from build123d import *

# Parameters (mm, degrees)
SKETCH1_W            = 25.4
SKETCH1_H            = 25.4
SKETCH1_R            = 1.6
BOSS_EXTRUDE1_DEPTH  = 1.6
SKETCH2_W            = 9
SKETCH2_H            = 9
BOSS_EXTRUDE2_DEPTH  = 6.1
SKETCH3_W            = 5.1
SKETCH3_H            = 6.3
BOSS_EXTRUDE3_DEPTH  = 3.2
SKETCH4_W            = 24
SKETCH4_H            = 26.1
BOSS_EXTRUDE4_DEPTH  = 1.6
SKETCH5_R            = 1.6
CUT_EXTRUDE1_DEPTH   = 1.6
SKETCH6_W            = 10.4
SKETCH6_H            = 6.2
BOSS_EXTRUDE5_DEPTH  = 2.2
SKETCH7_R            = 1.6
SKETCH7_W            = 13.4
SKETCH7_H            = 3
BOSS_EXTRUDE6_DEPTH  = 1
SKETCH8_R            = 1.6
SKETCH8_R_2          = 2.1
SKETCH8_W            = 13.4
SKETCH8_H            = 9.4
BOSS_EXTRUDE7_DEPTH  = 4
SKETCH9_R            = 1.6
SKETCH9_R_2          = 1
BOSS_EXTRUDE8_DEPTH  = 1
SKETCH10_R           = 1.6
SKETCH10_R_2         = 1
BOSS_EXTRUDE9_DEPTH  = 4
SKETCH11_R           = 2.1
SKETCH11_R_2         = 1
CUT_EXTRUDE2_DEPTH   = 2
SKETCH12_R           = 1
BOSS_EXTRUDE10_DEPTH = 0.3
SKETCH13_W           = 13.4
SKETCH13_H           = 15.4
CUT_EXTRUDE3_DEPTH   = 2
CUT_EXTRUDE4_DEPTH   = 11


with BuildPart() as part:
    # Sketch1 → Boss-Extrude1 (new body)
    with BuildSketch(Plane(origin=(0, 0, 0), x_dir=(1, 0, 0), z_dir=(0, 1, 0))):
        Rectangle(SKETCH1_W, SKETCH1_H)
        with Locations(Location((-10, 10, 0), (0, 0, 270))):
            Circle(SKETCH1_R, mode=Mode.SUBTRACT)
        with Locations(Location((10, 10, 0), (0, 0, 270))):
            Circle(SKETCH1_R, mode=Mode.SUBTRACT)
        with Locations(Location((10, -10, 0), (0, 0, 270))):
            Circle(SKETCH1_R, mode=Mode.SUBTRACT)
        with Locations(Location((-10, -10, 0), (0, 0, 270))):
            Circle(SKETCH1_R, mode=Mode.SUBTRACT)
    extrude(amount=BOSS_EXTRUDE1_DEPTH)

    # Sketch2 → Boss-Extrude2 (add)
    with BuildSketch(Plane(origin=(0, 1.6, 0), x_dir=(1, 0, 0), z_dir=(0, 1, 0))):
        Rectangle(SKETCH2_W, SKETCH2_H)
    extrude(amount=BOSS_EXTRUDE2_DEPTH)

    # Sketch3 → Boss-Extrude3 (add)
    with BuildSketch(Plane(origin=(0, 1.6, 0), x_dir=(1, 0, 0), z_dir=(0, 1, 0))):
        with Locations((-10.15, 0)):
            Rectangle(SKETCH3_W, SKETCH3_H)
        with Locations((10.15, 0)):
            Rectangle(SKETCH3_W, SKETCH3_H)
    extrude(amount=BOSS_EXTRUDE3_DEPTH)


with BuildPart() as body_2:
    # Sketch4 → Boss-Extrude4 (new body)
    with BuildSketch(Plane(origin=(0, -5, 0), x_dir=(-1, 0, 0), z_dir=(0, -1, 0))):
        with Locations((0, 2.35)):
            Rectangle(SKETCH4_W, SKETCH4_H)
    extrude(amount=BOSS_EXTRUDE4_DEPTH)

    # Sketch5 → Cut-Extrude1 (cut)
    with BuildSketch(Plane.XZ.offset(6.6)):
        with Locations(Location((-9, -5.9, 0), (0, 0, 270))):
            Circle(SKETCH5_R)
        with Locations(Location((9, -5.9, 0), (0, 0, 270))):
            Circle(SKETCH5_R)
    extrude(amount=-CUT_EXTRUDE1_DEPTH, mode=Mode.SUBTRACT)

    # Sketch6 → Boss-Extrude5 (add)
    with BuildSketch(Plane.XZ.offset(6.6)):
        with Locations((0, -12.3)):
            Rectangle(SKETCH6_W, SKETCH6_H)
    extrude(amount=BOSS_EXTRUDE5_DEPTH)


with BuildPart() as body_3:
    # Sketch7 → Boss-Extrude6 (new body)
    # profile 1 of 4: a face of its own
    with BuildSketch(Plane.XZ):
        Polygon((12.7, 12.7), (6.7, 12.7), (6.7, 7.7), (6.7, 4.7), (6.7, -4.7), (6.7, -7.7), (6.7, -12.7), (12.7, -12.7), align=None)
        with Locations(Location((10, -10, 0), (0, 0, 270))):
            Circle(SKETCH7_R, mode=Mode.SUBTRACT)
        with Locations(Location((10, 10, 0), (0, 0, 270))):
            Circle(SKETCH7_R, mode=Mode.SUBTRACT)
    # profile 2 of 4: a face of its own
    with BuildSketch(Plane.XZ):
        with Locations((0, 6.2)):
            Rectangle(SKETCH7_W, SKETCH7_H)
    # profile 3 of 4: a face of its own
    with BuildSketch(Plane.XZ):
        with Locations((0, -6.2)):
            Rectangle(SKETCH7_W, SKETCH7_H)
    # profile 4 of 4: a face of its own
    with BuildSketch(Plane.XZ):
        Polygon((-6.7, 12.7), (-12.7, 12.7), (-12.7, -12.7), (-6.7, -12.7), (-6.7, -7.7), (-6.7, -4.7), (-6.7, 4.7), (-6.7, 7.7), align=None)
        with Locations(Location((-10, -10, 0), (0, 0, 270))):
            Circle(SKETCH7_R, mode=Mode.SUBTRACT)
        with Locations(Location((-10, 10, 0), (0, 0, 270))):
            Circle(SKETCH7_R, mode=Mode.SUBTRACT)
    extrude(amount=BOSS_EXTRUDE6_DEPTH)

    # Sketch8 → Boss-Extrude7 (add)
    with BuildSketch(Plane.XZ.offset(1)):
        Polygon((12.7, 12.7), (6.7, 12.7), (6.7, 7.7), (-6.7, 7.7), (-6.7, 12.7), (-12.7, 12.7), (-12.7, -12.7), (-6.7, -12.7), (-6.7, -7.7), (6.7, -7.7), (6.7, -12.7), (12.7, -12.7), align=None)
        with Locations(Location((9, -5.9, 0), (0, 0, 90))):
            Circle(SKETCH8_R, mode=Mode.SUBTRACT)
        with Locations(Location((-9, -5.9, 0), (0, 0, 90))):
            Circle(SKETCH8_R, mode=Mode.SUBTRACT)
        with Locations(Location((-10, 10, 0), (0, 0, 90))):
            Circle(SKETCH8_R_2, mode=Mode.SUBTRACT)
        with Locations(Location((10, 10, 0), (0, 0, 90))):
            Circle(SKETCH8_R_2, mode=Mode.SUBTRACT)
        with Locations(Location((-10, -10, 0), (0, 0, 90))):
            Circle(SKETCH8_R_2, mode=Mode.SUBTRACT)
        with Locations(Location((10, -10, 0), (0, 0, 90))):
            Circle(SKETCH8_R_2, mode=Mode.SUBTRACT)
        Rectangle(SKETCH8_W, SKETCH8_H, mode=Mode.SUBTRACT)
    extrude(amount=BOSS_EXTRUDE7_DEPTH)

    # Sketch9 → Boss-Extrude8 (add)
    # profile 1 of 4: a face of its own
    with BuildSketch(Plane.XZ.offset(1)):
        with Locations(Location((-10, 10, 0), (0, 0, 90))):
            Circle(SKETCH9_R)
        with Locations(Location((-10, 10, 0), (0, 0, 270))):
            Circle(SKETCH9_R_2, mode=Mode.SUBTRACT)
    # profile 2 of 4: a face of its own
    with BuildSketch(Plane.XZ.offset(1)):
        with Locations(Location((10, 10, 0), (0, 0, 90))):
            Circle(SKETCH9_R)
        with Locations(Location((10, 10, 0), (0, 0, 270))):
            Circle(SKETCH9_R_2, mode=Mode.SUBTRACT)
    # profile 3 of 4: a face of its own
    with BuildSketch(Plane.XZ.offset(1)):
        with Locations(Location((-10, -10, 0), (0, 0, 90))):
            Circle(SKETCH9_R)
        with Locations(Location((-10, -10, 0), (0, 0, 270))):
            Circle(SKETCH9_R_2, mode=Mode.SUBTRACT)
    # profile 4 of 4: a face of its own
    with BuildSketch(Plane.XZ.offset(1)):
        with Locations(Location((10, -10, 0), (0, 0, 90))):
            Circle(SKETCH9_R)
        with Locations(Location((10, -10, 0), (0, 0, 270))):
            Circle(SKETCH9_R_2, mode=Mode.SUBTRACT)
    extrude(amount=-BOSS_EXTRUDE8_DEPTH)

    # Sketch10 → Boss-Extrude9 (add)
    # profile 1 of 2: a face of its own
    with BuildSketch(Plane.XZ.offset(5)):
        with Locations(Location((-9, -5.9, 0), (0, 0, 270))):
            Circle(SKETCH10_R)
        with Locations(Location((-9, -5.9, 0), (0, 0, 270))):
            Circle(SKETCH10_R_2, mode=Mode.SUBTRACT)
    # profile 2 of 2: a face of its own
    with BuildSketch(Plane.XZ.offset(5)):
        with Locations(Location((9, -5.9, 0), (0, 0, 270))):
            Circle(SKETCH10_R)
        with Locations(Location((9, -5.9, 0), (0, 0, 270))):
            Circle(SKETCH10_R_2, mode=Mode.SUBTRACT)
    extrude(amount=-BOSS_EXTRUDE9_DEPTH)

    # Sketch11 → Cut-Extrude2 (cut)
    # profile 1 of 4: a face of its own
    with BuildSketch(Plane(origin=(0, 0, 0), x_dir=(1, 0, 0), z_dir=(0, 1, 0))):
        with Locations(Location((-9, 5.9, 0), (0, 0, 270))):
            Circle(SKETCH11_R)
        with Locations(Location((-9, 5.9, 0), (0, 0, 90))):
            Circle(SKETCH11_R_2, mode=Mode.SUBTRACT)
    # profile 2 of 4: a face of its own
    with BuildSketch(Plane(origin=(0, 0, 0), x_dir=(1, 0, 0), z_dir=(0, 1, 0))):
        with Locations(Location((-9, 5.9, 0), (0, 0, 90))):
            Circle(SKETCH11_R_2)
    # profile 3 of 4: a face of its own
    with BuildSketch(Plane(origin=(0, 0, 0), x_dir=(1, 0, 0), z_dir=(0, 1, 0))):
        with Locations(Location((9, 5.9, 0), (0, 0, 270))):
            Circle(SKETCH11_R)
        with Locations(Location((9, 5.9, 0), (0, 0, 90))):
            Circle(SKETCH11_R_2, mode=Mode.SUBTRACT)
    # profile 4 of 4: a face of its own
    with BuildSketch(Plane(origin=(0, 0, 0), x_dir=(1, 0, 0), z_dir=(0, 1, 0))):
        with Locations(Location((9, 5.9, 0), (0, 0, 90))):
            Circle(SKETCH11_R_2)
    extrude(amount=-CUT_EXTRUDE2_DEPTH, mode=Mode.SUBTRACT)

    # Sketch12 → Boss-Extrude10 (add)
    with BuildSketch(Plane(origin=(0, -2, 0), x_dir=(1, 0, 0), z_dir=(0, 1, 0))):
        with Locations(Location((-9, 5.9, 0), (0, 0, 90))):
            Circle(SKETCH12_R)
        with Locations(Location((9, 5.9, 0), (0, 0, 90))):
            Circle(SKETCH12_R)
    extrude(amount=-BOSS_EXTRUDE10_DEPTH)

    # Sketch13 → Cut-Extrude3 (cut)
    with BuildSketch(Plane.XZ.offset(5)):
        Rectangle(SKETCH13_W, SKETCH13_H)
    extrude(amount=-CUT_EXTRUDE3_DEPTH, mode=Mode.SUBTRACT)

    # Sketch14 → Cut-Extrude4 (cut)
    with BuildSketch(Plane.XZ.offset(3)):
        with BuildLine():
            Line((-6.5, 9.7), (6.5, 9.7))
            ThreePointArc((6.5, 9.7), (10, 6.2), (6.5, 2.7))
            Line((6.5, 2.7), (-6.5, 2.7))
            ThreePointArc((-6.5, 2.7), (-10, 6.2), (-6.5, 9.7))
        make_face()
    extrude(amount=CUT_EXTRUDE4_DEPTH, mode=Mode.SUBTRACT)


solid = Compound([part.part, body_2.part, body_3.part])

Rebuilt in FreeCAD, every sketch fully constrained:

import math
import FreeCAD as App
import Part
import Sketcher

V = App.Vector
Q = App.Units.Quantity

doc = App.newDocument("Part")
body = doc.addObject("PartDesign::Body", "Body")

# Sketch on XZ plane
sketch1 = body.newObject("Sketcher::SketchObject", "Sketch")
sketch1.AttachmentSupport = (doc.getObject("XZ_Plane"), [""])
sketch1.MapMode = "FlatFace"
sketch1.addGeometry([
    Part.LineSegment(V(-12.7, -12.7, 0), V(-12.7, 12.7, 0)),  # 0
    Part.LineSegment(V(-12.7, 12.7, 0), V(12.7, 12.7, 0)),  # 1
    Part.LineSegment(V(12.7, 12.7, 0), V(12.7, -12.7, 0)),  # 2
    Part.LineSegment(V(12.7, -12.7, 0), V(-12.7, -12.7, 0)),  # 3
    Part.Circle(V(-10, 10, 0), V(0, 0, 1), 1.6),  # 4
    Part.Circle(V(10, 10, 0), V(0, 0, 1), 1.6),  # 5
    Part.Circle(V(-10, -10, 0), V(0, 0, 1), 1.6),  # 6
    Part.Circle(V(10, -10, 0), V(0, 0, 1), 1.6),  # 7
], False)
sketch1.addConstraint([
    Sketcher.Constraint("Coincident", 0, 2, 1, 1),
    Sketcher.Constraint("Coincident", 1, 2, 2, 1),
    Sketcher.Constraint("Coincident", 2, 2, 3, 1),
    Sketcher.Constraint("Coincident", 3, 2, 0, 1),
    Sketcher.Constraint("Vertical", 0),
    Sketcher.Constraint("Horizontal", 1),
    Sketcher.Constraint("Vertical", 2),
    Sketcher.Constraint("Horizontal", 3),
    Sketcher.Constraint("Equal", 4, 5),
    Sketcher.Constraint("Equal", 5, 6),
    Sketcher.Constraint("Equal", 6, 7),
    Sketcher.Constraint("Symmetric", 5, 3, 6, 3, -1, 1),
    Sketcher.Constraint("Symmetric", 4, 3, 7, 3, -1, 1),
    Sketcher.Constraint("Symmetric", 0, 2, 2, 2, -1, 1),
    Sketcher.Constraint("Symmetric", 4, 3, 5, 3, -2),
    Sketcher.Constraint("Equal", 3, 0),
    Sketcher.Constraint("Diameter", 4, Q("3.2 mm")),
    Sketcher.Constraint("DistanceX", 1, 1, 1, 2, Q("25.4 mm")),
    Sketcher.Constraint("DistanceX", 4, 3, -1, 1, Q("10 mm")),
    Sketcher.Constraint("DistanceY", -1, 1, 4, 3, Q("10 mm")),
])
pad1 = body.newObject("PartDesign::Pad", "Pad")
pad1.Profile = sketch1
pad1.Length = 1.6
pad1.Reversed = True

# Sketch on XZ plane
sketch2 = body.newObject("Sketcher::SketchObject", "Sketch001")
sketch2.AttachmentSupport = (doc.getObject("XZ_Plane"), [""])
sketch2.MapMode = "FlatFace"
sketch2.AttachmentOffset = App.Placement(V(0, 0, -1.6), App.Rotation())
sketch2.addGeometry([
    Part.LineSegment(V(-4, -4, 0), V(-4, 4, 0)),
    Part.LineSegment(V(-4, 4, 0), V(4, 4, 0)),
    Part.LineSegment(V(4, 4, 0), V(4, -4, 0)),
    Part.LineSegment(V(4, -4, 0), V(-4, -4, 0)),
], False)
sketch2.addConstraint([
    Sketcher.Constraint("Coincident", 0, 2, 1, 1),
    Sketcher.Constraint("Coincident", 1, 2, 2, 1),
    Sketcher.Constraint("Coincident", 2, 2, 3, 1),
    Sketcher.Constraint("Coincident", 3, 2, 0, 1),
    Sketcher.Constraint("Vertical", 0),
    Sketcher.Constraint("Horizontal", 1),
    Sketcher.Constraint("Vertical", 2),
    Sketcher.Constraint("Horizontal", 3),
    Sketcher.Constraint("Symmetric", 0, 2, 2, 2, -1, 1),
    Sketcher.Constraint("Equal", 3, 0),
    Sketcher.Constraint("DistanceX", 1, 1, 1, 2, Q("9 mm")),
])
pad2 = body.newObject("PartDesign::Pad", "Pad001")
pad2.Profile = sketch2
pad2.Length = 6.1
pad2.Reversed = True

# Sketch on XZ plane
sketch3 = body.newObject("Sketcher::SketchObject", "Sketch002")
sketch3.AttachmentSupport = (doc.getObject("XZ_Plane"), [""])
sketch3.MapMode = "FlatFace"
sketch3.AttachmentOffset = App.Placement(V(0, 0, -1.6), App.Rotation())
sketch3.addGeometry([
    Part.LineSegment(V(-13, -3, 0), V(-13, 3, 0)),  # 0
    Part.LineSegment(V(-13, 3, 0), V(-8, 3, 0)),  # 1
    Part.LineSegment(V(-8, 3, 0), V(-8, -3, 0)),  # 2
    Part.LineSegment(V(-8, -3, 0), V(-13, -3, 0)),  # 3
    Part.LineSegment(V(8, -3, 0), V(8, 3, 0)),  # 4
    Part.LineSegment(V(8, 3, 0), V(13, 3, 0)),  # 5
    Part.LineSegment(V(13, 3, 0), V(13, -3, 0)),  # 6
    Part.LineSegment(V(13, -3, 0), V(8, -3, 0)),  # 7
], False)
sketch3.addConstraint([
    Sketcher.Constraint("Coincident", 0, 2, 1, 1),
    Sketcher.Constraint("Coincident", 1, 2, 2, 1),
    Sketcher.Constraint("Coincident", 2, 2, 3, 1),
    Sketcher.Constraint("Coincident", 3, 2, 0, 1),
    Sketcher.Constraint("Coincident", 4, 2, 5, 1),
    Sketcher.Constraint("Coincident", 5, 2, 6, 1),
    Sketcher.Constraint("Coincident", 6, 2, 7, 1),
    Sketcher.Constraint("Coincident", 7, 2, 4, 1),
    Sketcher.Constraint("Vertical", 0),
    Sketcher.Constraint("Horizontal", 1),
    Sketcher.Constraint("Vertical", 2),
    Sketcher.Constraint("Horizontal", 3),
    Sketcher.Constraint("Vertical", 4),
    Sketcher.Constraint("Horizontal", 5),
    Sketcher.Constraint("Vertical", 6),
    Sketcher.Constraint("Horizontal", 7),
    Sketcher.Constraint("Symmetric", 2, 2, 4, 2, -1, 1),
    Sketcher.Constraint("Symmetric", 0, 2, 6, 2, -1, 1),
    Sketcher.Constraint("Horizontal", 1, 2, 4, 2),
    Sketcher.Constraint("DistanceX", 1, 1, 1, 2, Q("5.1 mm")),
    Sketcher.Constraint("DistanceY", 0, 1, 0, 2, Q("6.3 mm")),
    Sketcher.Constraint("DistanceX", 0, 2, -1, 1, Q("12.7 mm")),
])
pad3 = body.newObject("PartDesign::Pad", "Pad002")
pad3.Profile = sketch3
pad3.Length = 3.2
pad3.Reversed = True
body2 = doc.addObject("PartDesign::Body", "Body001")

# Sketch on XZ plane
sketch4 = body2.newObject("Sketcher::SketchObject", "Sketch003")
sketch4.AttachmentSupport = (doc.getObject("XZ_Plane001"), [""])
sketch4.MapMode = "FlatFace"
sketch4.AttachmentOffset = App.Placement(V(0, 0, 5), App.Rotation())
sketch4.addGeometry([
    Part.LineSegment(V(12, -15, 0), V(12, 11, 0)),
    Part.LineSegment(V(12, 11, 0), V(-12, 11, 0)),
    Part.LineSegment(V(-12, 11, 0), V(-12, -15, 0)),
    Part.LineSegment(V(-12, -15, 0), V(12, -15, 0)),
], False)
sketch4.addConstraint([
    Sketcher.Constraint("Coincident", 0, 2, 1, 1),
    Sketcher.Constraint("Coincident", 1, 2, 2, 1),
    Sketcher.Constraint("Coincident", 2, 2, 3, 1),
    Sketcher.Constraint("Coincident", 3, 2, 0, 1),
    Sketcher.Constraint("Vertical", 0),
    Sketcher.Constraint("Horizontal", 1),
    Sketcher.Constraint("Vertical", 2),
    Sketcher.Constraint("Horizontal", 3),
    Sketcher.Constraint("DistanceX", 1, 2, 1, 1, Q("24 mm")),
    Sketcher.Constraint("DistanceY", 0, 1, 0, 2, Q("26.1 mm")),
    Sketcher.Constraint("DistanceX", -1, 1, 0, 2, Q("12 mm")),
    Sketcher.Constraint("DistanceY", -1, 1, 0, 2, Q("10.7 mm")),
])
pad4 = body2.newObject("PartDesign::Pad", "Pad003")
pad4.Profile = sketch4
pad4.Length = 1.6

# Sketch on XZ plane
sketch5 = body2.newObject("Sketcher::SketchObject", "Sketch004")
sketch5.AttachmentSupport = (doc.getObject("XZ_Plane001"), [""])
sketch5.MapMode = "FlatFace"
sketch5.AttachmentOffset = App.Placement(V(0, 0, 6.6), App.Rotation())
sketch5.addGeometry([
    Part.Circle(V(-9, -5.9, 0), V(0, 0, 1), 1.6),
    Part.Circle(V(9, -5.9, 0), V(0, 0, 1), 1.6),
], False)
sketch5.addConstraint([
    Sketcher.Constraint("Equal", 0, 1),
    Sketcher.Constraint("Symmetric", 0, 3, 1, 3, -2),
    Sketcher.Constraint("Diameter", 0, Q("3.2 mm")),
    Sketcher.Constraint("DistanceX", 0, 3, -1, 1, Q("9 mm")),
    Sketcher.Constraint("DistanceY", 0, 3, -1, 1, Q("5.9 mm")),
])
pocket1 = body2.newObject("PartDesign::Pocket", "Pocket")
pocket1.Profile = sketch5
pocket1.Length = 1.6

# Sketch on XZ plane
sketch6 = body2.newObject("Sketcher::SketchObject", "Sketch005")
sketch6.AttachmentSupport = (doc.getObject("XZ_Plane001"), [""])
sketch6.MapMode = "FlatFace"
sketch6.AttachmentOffset = App.Placement(V(0, 0, 6.6), App.Rotation())
sketch6.addGeometry([
    Part.LineSegment(V(-5, -9, 0), V(-5, -15, 0)),
    Part.LineSegment(V(-5, -15, 0), V(5, -15, 0)),
    Part.LineSegment(V(5, -15, 0), V(5, -9, 0)),
    Part.LineSegment(V(5, -9, 0), V(-5, -9, 0)),
], False)
sketch6.addConstraint([
    Sketcher.Constraint("Coincident", 0, 2, 1, 1),
    Sketcher.Constraint("Coincident", 1, 2, 2, 1),
    Sketcher.Constraint("Coincident", 2, 2, 3, 1),
    Sketcher.Constraint("Coincident", 3, 2, 0, 1),
    Sketcher.Constraint("Vertical", 0),
    Sketcher.Constraint("Horizontal", 1),
    Sketcher.Constraint("Vertical", 2),
    Sketcher.Constraint("Horizontal", 3),
    Sketcher.Constraint("DistanceX", 1, 1, 1, 2, Q("10.4 mm")),
    Sketcher.Constraint("DistanceY", 0, 2, 0, 1, Q("6.2 mm")),
    Sketcher.Constraint("DistanceX", 0, 2, -1, 1, Q("5.2 mm")),
    Sketcher.Constraint("DistanceY", 0, 2, -1, 1, Q("15.4 mm")),
])
pad5 = body2.newObject("PartDesign::Pad", "Pad004")
pad5.Profile = sketch6
pad5.Length = 2.2
body3 = doc.addObject("PartDesign::Body", "Body002")

# Sketch on XZ plane
sketch7 = body3.newObject("Sketcher::SketchObject", "Sketch006")
sketch7.AttachmentSupport = (doc.getObject("XZ_Plane002"), [""])
sketch7.MapMode = "FlatFace"
sketch7.addGeometry([
    Part.LineSegment(V(12.7, 12.7, 0), V(6.7, 12.7, 0)),  # 0
    Part.LineSegment(V(6.7, 12.7, 0), V(6.7, 7.7, 0)),  # 1
    Part.LineSegment(V(6.7, 7.7, 0), V(-6.7, 7.7, 0)),  # 2
    Part.LineSegment(V(-6.7, 7.7, 0), V(-6.7, 12.7, 0)),  # 3
    Part.LineSegment(V(-6.7, 12.7, 0), V(-12.7, 12.7, 0)),  # 4
    Part.LineSegment(V(-12.7, 12.7, 0), V(-12.7, -12.7, 0)),  # 5
    Part.LineSegment(V(-12.7, -12.7, 0), V(-6.7, -12.7, 0)),  # 6
    Part.LineSegment(V(-6.7, -12.7, 0), V(-6.7, -7.7, 0)),  # 7
    Part.LineSegment(V(-6.7, -7.7, 0), V(6.7, -7.7, 0)),  # 8
    Part.LineSegment(V(6.7, -7.7, 0), V(6.7, -12.7, 0)),  # 9
    Part.LineSegment(V(6.7, -12.7, 0), V(12.7, -12.7, 0)),  # 10
    Part.LineSegment(V(12.7, -12.7, 0), V(12.7, 12.7, 0)),  # 11
    Part.LineSegment(V(6.7, 4.7, 0), V(6.7, -4.7, 0)),  # 12
    Part.LineSegment(V(6.7, -4.7, 0), V(-6.7, -4.7, 0)),  # 13
    Part.LineSegment(V(-6.7, -4.7, 0), V(-6.7, 4.7, 0)),  # 14
    Part.LineSegment(V(-6.7, 4.7, 0), V(6.7, 4.7, 0)),  # 15
    Part.Circle(V(10, -10, 0), V(0, 0, 1), 1.6),  # 16
    Part.Circle(V(10, 10, 0), V(0, 0, 1), 1.6),  # 17
    Part.Circle(V(-10, -10, 0), V(0, 0, 1), 1.6),  # 18
    Part.Circle(V(-10, 10, 0), V(0, 0, 1), 1.6),  # 19
], False)
sketch7.addConstraint([
    Sketcher.Constraint("Coincident", 0, 2, 1, 1),
    Sketcher.Constraint("Coincident", 1, 2, 2, 1),
    Sketcher.Constraint("Coincident", 2, 2, 3, 1),
    Sketcher.Constraint("Coincident", 3, 2, 4, 1),
    Sketcher.Constraint("Coincident", 4, 2, 5, 1),
    Sketcher.Constraint("Coincident", 5, 2, 6, 1),
    Sketcher.Constraint("Coincident", 6, 2, 7, 1),
    Sketcher.Constraint("Coincident", 7, 2, 8, 1),
    Sketcher.Constraint("Coincident", 8, 2, 9, 1),
    Sketcher.Constraint("Coincident", 9, 2, 10, 1),
    Sketcher.Constraint("Coincident", 10, 2, 11, 1),
    Sketcher.Constraint("Coincident", 11, 2, 0, 1),
    Sketcher.Constraint("Coincident", 12, 2, 13, 1),
    Sketcher.Constraint("Coincident", 13, 2, 14, 1),
    Sketcher.Constraint("Coincident", 14, 2, 15, 1),
    Sketcher.Constraint("Coincident", 15, 2, 12, 1),
    Sketcher.Constraint("Horizontal", 0),
    Sketcher.Constraint("Vertical", 1),
    Sketcher.Constraint("Horizontal", 2),
    Sketcher.Constraint("Vertical", 3),
    Sketcher.Constraint("Horizontal", 4),
    Sketcher.Constraint("Vertical", 5),
    Sketcher.Constraint("Horizontal", 6),
    Sketcher.Constraint("Vertical", 7),
    Sketcher.Constraint("Horizontal", 8),
    Sketcher.Constraint("Vertical", 9),
    Sketcher.Constraint("Horizontal", 10),
    Sketcher.Constraint("Vertical", 11),
    Sketcher.Constraint("Vertical", 12),
    Sketcher.Constraint("Horizontal", 13),
    Sketcher.Constraint("Vertical", 14),
    Sketcher.Constraint("Horizontal", 15),
    Sketcher.Constraint("Equal", 16, 17),
    Sketcher.Constraint("Equal", 17, 18),
    Sketcher.Constraint("Equal", 18, 19),
    Sketcher.Constraint("Symmetric", 17, 3, 18, 3, -1, 1),
    Sketcher.Constraint("Symmetric", 16, 3, 19, 3, -1, 1),
    Sketcher.Constraint("Symmetric", 0, 2, 6, 2, -1, 1),
    Sketcher.Constraint("Symmetric", 2, 2, 8, 2, -1, 1),
    Sketcher.Constraint("Symmetric", 4, 2, 10, 2, -1, 1),
    Sketcher.Constraint("Symmetric", 12, 2, 14, 2, -1, 1),
    Sketcher.Constraint("Symmetric", 16, 3, 18, 3, -2),
    Sketcher.Constraint("Symmetric", 0, 2, 3, 2, -2),
    Sketcher.Constraint("Vertical", 9, 2, 12, 2),
    Sketcher.Constraint("Diameter", 16, Q("3.2 mm")),
    Sketcher.Constraint("DistanceX", 0, 2, 0, 1, Q("6 mm")),
    Sketcher.Constraint("DistanceY", 1, 2, 1, 1, Q("5 mm")),
    Sketcher.Constraint("DistanceX", 2, 2, 2, 1, Q("13.4 mm")),
    Sketcher.Constraint("DistanceY", 5, 2, 5, 1, Q("25.4 mm")),
    Sketcher.Constraint("DistanceY", 12, 2, 12, 1, Q("9.4 mm")),
    Sketcher.Constraint("DistanceX", -1, 1, 16, 3, Q("10 mm")),
    Sketcher.Constraint("DistanceY", 16, 3, -1, 1, Q("10 mm")),
])
pad6 = body3.newObject("PartDesign::Pad", "Pad005")
pad6.Profile = sketch7
pad6.Length = 1

# Sketch on XZ plane
sketch8 = body3.newObject("Sketcher::SketchObject", "Sketch007")
sketch8.AttachmentSupport = (doc.getObject("XZ_Plane002"), [""])
sketch8.MapMode = "FlatFace"
sketch8.AttachmentOffset = App.Placement(V(0, 0, 1), App.Rotation())
sketch8.addGeometry([
    Part.LineSegment(V(12.7, 12.7, 0), V(6.7, 12.7, 0)),  # 0
    Part.LineSegment(V(6.7, 12.7, 0), V(6.7, 7.7, 0)),  # 1
    Part.LineSegment(V(6.7, 7.7, 0), V(-6.7, 7.7, 0)),  # 2
    Part.LineSegment(V(-6.7, 7.7, 0), V(-6.7, 12.7, 0)),  # 3
    Part.LineSegment(V(-6.7, 12.7, 0), V(-12.7, 12.7, 0)),  # 4
    Part.LineSegment(V(-12.7, 12.7, 0), V(-12.7, -12.7, 0)),  # 5
    Part.LineSegment(V(-12.7, -12.7, 0), V(-6.7, -12.7, 0)),  # 6
    Part.LineSegment(V(-6.7, -12.7, 0), V(-6.7, -7.7, 0)),  # 7
    Part.LineSegment(V(-6.7, -7.7, 0), V(6.7, -7.7, 0)),  # 8
    Part.LineSegment(V(6.7, -7.7, 0), V(6.7, -12.7, 0)),  # 9
    Part.LineSegment(V(6.7, -12.7, 0), V(12.7, -12.7, 0)),  # 10
    Part.LineSegment(V(12.7, -12.7, 0), V(12.7, 12.7, 0)),  # 11
    Part.Circle(V(-10, -10, 0), V(0, 0, 1), 2.1),  # 12
    Part.Circle(V(-9, -5.9, 0), V(0, 0, 1), 1.6),  # 13
    Part.Circle(V(10, -10, 0), V(0, 0, 1), 2.1),  # 14
    Part.Circle(V(9, -5.9, 0), V(0, 0, 1), 1.6),  # 15
    Part.Circle(V(-10, 10, 0), V(0, 0, 1), 2.1),  # 16
    Part.LineSegment(V(6.7, -4.7, 0), V(-6.7, -4.7, 0)),  # 17
    Part.LineSegment(V(-6.7, -4.7, 0), V(-6.7, 4.7, 0)),  # 18
    Part.LineSegment(V(-6.7, 4.7, 0), V(6.7, 4.7, 0)),  # 19
    Part.LineSegment(V(6.7, 4.7, 0), V(6.7, -4.7, 0)),  # 20
    Part.Circle(V(10, 10, 0), V(0, 0, 1), 2.1),  # 21
], False)
sketch8.addConstraint([
    Sketcher.Constraint("Coincident", 0, 2, 1, 1),
    Sketcher.Constraint("Coincident", 1, 2, 2, 1),
    Sketcher.Constraint("Coincident", 2, 2, 3, 1),
    Sketcher.Constraint("Coincident", 3, 2, 4, 1),
    Sketcher.Constraint("Coincident", 4, 2, 5, 1),
    Sketcher.Constraint("Coincident", 5, 2, 6, 1),
    Sketcher.Constraint("Coincident", 6, 2, 7, 1),
    Sketcher.Constraint("Coincident", 7, 2, 8, 1),
    Sketcher.Constraint("Coincident", 8, 2, 9, 1),
    Sketcher.Constraint("Coincident", 9, 2, 10, 1),
    Sketcher.Constraint("Coincident", 10, 2, 11, 1),
    Sketcher.Constraint("Coincident", 11, 2, 0, 1),
    Sketcher.Constraint("Coincident", 17, 2, 18, 1),
    Sketcher.Constraint("Coincident", 18, 2, 19, 1),
    Sketcher.Constraint("Coincident", 19, 2, 20, 1),
    Sketcher.Constraint("Coincident", 20, 2, 17, 1),
    Sketcher.Constraint("Horizontal", 0),
    Sketcher.Constraint("Vertical", 1),
    Sketcher.Constraint("Horizontal", 2),
    Sketcher.Constraint("Vertical", 3),
    Sketcher.Constraint("Horizontal", 4),
    Sketcher.Constraint("Vertical", 5),
    Sketcher.Constraint("Horizontal", 6),
    Sketcher.Constraint("Vertical", 7),
    Sketcher.Constraint("Horizontal", 8),
    Sketcher.Constraint("Vertical", 9),
    Sketcher.Constraint("Horizontal", 10),
    Sketcher.Constraint("Vertical", 11),
    Sketcher.Constraint("Horizontal", 17),
    Sketcher.Constraint("Vertical", 18),
    Sketcher.Constraint("Horizontal", 19),
    Sketcher.Constraint("Vertical", 20),
    Sketcher.Constraint("Equal", 12, 14),
    Sketcher.Constraint("Equal", 13, 15),
    Sketcher.Constraint("Equal", 14, 16),
    Sketcher.Constraint("Equal", 16, 21),
    Sketcher.Constraint("Symmetric", 14, 3, 16, 3, -1, 1),
    Sketcher.Constraint("Symmetric", 12, 3, 21, 3, -1, 1),
    Sketcher.Constraint("Symmetric", 0, 2, 6, 2, -1, 1),
    Sketcher.Constraint("Symmetric", 2, 2, 8, 2, -1, 1),
    Sketcher.Constraint("Symmetric", 4, 2, 10, 2, -1, 1),
    Sketcher.Constraint("Symmetric", 17, 2, 19, 2, -1, 1),
    Sketcher.Constraint("Symmetric", 12, 3, 14, 3, -2),
    Sketcher.Constraint("Symmetric", 13, 3, 15, 3, -2),
    Sketcher.Constraint("Symmetric", 0, 2, 3, 2, -2),
    Sketcher.Constraint("Vertical", 7, 2, 17, 2),
    Sketcher.Constraint("Diameter", 12, Q("4.2 mm")),
    Sketcher.Constraint("Diameter", 13, Q("3.2 mm")),
    Sketcher.Constraint("DistanceX", 0, 2, 0, 1, Q("6 mm")),
    Sketcher.Constraint("DistanceY", 1, 2, 1, 1, Q("5 mm")),
    Sketcher.Constraint("DistanceX", 2, 2, 2, 1, Q("13.4 mm")),
    Sketcher.Constraint("DistanceY", 5, 2, 5, 1, Q("25.4 mm")),
    Sketcher.Constraint("DistanceY", 18, 1, 18, 2, Q("9.4 mm")),
    Sketcher.Constraint("DistanceX", 12, 3, -1, 1, Q("10 mm")),
    Sketcher.Constraint("DistanceY", 12, 3, -1, 1, Q("10 mm")),
    Sketcher.Constraint("DistanceX", 13, 3, -1, 1, Q("9 mm")),
    Sketcher.Constraint("DistanceY", 13, 3, -1, 1, Q("5.9 mm")),
])
pad7 = body3.newObject("PartDesign::Pad", "Pad006")
pad7.Profile = sketch8
pad7.Length = 4

# Sketch on XZ plane
sketch9 = body3.newObject("Sketcher::SketchObject", "Sketch008")
sketch9.AttachmentSupport = (doc.getObject("XZ_Plane002"), [""])
sketch9.MapMode = "FlatFace"
sketch9.AttachmentOffset = App.Placement(V(0, 0, 1), App.Rotation())
sketch9.addGeometry([
    Part.Circle(V(-10, 10, 0), V(0, 0, 1), 1.6),  # 0
    Part.Circle(V(-10, 10, 0), V(0, 0, 1), 1),  # 1
    Part.Circle(V(10, 10, 0), V(0, 0, 1), 1.6),  # 2
    Part.Circle(V(10, 10, 0), V(0, 0, 1), 1),  # 3
    Part.Circle(V(-10, -10, 0), V(0, 0, 1), 1.6),  # 4
    Part.Circle(V(-10, -10, 0), V(0, 0, 1), 1),  # 5
    Part.Circle(V(10, -10, 0), V(0, 0, 1), 1.6),  # 6
    Part.Circle(V(10, -10, 0), V(0, 0, 1), 1),  # 7
], False)
sketch9.addConstraint([
    Sketcher.Constraint("Coincident", 1, 3, 0, 3),
    Sketcher.Constraint("Coincident", 3, 3, 2, 3),
    Sketcher.Constraint("Coincident", 5, 3, 4, 3),
    Sketcher.Constraint("Coincident", 7, 3, 6, 3),
    Sketcher.Constraint("Equal", 0, 2),
    Sketcher.Constraint("Equal", 1, 3),
    Sketcher.Constraint("Equal", 2, 4),
    Sketcher.Constraint("Equal", 3, 5),
    Sketcher.Constraint("Equal", 4, 6),
    Sketcher.Constraint("Equal", 5, 7),
    Sketcher.Constraint("Symmetric", 2, 3, 4, 3, -1, 1),
    Sketcher.Constraint("Symmetric", 0, 3, 6, 3, -1, 1),
    Sketcher.Constraint("Symmetric", 0, 3, 2, 3, -2),
    Sketcher.Constraint("Diameter", 1, Q("2 mm")),
    Sketcher.Constraint("Diameter", 0, Q("3.2 mm")),
    Sketcher.Constraint("DistanceX", 0, 3, -1, 1, Q("10 mm")),
    Sketcher.Constraint("DistanceY", -1, 1, 0, 3, Q("10 mm")),
])
pad8 = body3.newObject("PartDesign::Pad", "Pad007")
pad8.Profile = sketch9
pad8.Length = 1
pad8.Reversed = True

# Sketch on XZ plane
sketch10 = body3.newObject("Sketcher::SketchObject", "Sketch009")
sketch10.AttachmentSupport = (doc.getObject("XZ_Plane002"), [""])
sketch10.MapMode = "FlatFace"
sketch10.AttachmentOffset = App.Placement(V(0, 0, 5), App.Rotation())
sketch10.addGeometry([
    Part.Circle(V(-9, -5.9, 0), V(0, 0, 1), 1.6),
    Part.Circle(V(-9, -5.9, 0), V(0, 0, 1), 1),
    Part.Circle(V(9, -5.9, 0), V(0, 0, 1), 1.6),
    Part.Circle(V(9, -5.9, 0), V(0, 0, 1), 1),
], False)
sketch10.addConstraint([
    Sketcher.Constraint("Coincident", 1, 3, 0, 3),
    Sketcher.Constraint("Coincident", 3, 3, 2, 3),
    Sketcher.Constraint("Equal", 0, 2),
    Sketcher.Constraint("Equal", 1, 3),
    Sketcher.Constraint("Symmetric", 0, 3, 2, 3, -2),
    Sketcher.Constraint("Diameter", 1, Q("2 mm")),
    Sketcher.Constraint("Diameter", 0, Q("3.2 mm")),
    Sketcher.Constraint("DistanceX", 0, 3, -1, 1, Q("9 mm")),
    Sketcher.Constraint("DistanceY", 0, 3, -1, 1, Q("5.9 mm")),
])
pad9 = body3.newObject("PartDesign::Pad", "Pad008")
pad9.Profile = sketch10
pad9.Length = 4
pad9.Reversed = True

# Sketch on XZ plane
sketch11 = body3.newObject("Sketcher::SketchObject", "Sketch010")
sketch11.AttachmentSupport = (doc.getObject("XZ_Plane002"), [""])
sketch11.MapMode = "FlatFace"
sketch11.addGeometry([
    Part.Circle(V(-9, -5.9, 0), V(0, 0, 1), 2.1),
    Part.Circle(V(9, -5.9, 0), V(0, 0, 1), 2.1),
], False)
sketch11.addConstraint([
    Sketcher.Constraint("Equal", 0, 1),
    Sketcher.Constraint("Symmetric", 0, 3, 1, 3, -2),
    Sketcher.Constraint("Diameter", 0, Q("4.2 mm")),
    Sketcher.Constraint("DistanceX", 0, 3, -1, 1, Q("9 mm")),
    Sketcher.Constraint("DistanceY", 0, 3, -1, 1, Q("5.9 mm")),
])
pocket2 = body3.newObject("PartDesign::Pocket", "Pocket001")
pocket2.Profile = sketch11
pocket2.Length = 2
pocket2.Reversed = True

# Sketch on XZ plane
sketch12 = body3.newObject("Sketcher::SketchObject", "Sketch011")
sketch12.AttachmentSupport = (doc.getObject("XZ_Plane002"), [""])
sketch12.MapMode = "FlatFace"
sketch12.AttachmentOffset = App.Placement(V(0, 0, 2), App.Rotation())
sketch12.addGeometry([
    Part.Circle(V(-9, -5.9, 0), V(0, 0, 1), 1),
    Part.Circle(V(9, -5.9, 0), V(0, 0, 1), 1),
], False)
sketch12.addConstraint([
    Sketcher.Constraint("Equal", 0, 1),
    Sketcher.Constraint("Symmetric", 0, 3, 1, 3, -2),
    Sketcher.Constraint("Diameter", 0, Q("2 mm")),
    Sketcher.Constraint("DistanceX", 0, 3, -1, 1, Q("9 mm")),
    Sketcher.Constraint("DistanceY", 0, 3, -1, 1, Q("5.9 mm")),
])
pad10 = body3.newObject("PartDesign::Pad", "Pad009")
pad10.Profile = sketch12
pad10.Length = 0.3

# Sketch on XZ plane
sketch13 = body3.newObject("Sketcher::SketchObject", "Sketch012")
sketch13.AttachmentSupport = (doc.getObject("XZ_Plane002"), [""])
sketch13.MapMode = "FlatFace"
sketch13.AttachmentOffset = App.Placement(V(0, 0, 5), App.Rotation())
sketch13.addGeometry([
    Part.LineSegment(V(-7, 8, 0), V(-7, -8, 0)),
    Part.LineSegment(V(-7, -8, 0), V(7, -8, 0)),
    Part.LineSegment(V(7, -8, 0), V(7, 8, 0)),
    Part.LineSegment(V(7, 8, 0), V(-7, 8, 0)),
], False)
sketch13.addConstraint([
    Sketcher.Constraint("Coincident", 0, 2, 1, 1),
    Sketcher.Constraint("Coincident", 1, 2, 2, 1),
    Sketcher.Constraint("Coincident", 2, 2, 3, 1),
    Sketcher.Constraint("Coincident", 3, 2, 0, 1),
    Sketcher.Constraint("Vertical", 0),
    Sketcher.Constraint("Horizontal", 1),
    Sketcher.Constraint("Vertical", 2),
    Sketcher.Constraint("Horizontal", 3),
    Sketcher.Constraint("Symmetric", 0, 2, 2, 2, -1, 1),
    Sketcher.Constraint("DistanceX", 1, 1, 1, 2, Q("13.4 mm")),
    Sketcher.Constraint("DistanceY", 0, 2, 0, 1, Q("15.4 mm")),
])
pocket3 = body3.newObject("PartDesign::Pocket", "Pocket002")
pocket3.Profile = sketch13
pocket3.Length = 2

# Sketch on XZ plane
sketch14 = body3.newObject("Sketcher::SketchObject", "Sketch013")
sketch14.AttachmentSupport = (doc.getObject("XZ_Plane002"), [""])
sketch14.MapMode = "FlatFace"
sketch14.AttachmentOffset = App.Placement(V(0, 0, 3), App.Rotation())
sketch14.addGeometry([
    Part.LineSegment(V(6.5, 9.7, 0), V(-6.5, 9.7, 0)),
    Part.ArcOfCircle(Part.Circle(V(-6.5, 6.2, 0), V(0, 0, 1), 3.5), math.radians(90), math.radians(270)),
    Part.LineSegment(V(-6.5, 2.7, 0), V(6.5, 2.7, 0)),
    Part.ArcOfCircle(Part.Circle(V(6.5, 6.2, 0), V(0, 0, 1), 3.5), math.radians(-90), math.radians(90)),
], False)
sketch14.addConstraint([
    Sketcher.Constraint("Tangent", 0, 2, 1, 1),
    Sketcher.Constraint("Tangent", 1, 2, 2, 1),
    Sketcher.Constraint("Tangent", 2, 2, 3, 1),
    Sketcher.Constraint("Tangent", 3, 2, 0, 1),
    Sketcher.Constraint("Horizontal", 0),
    Sketcher.Constraint("Horizontal", 2),
    Sketcher.Constraint("Radius", 1, Q("3.5 mm")),
    Sketcher.Constraint("DistanceX", 0, 2, 0, 1, Q("13 mm")),
    Sketcher.Constraint("DistanceX", 1, 3, -1, 1, Q("6.5 mm")),
    Sketcher.Constraint("DistanceY", -1, 1, 1, 3, Q("6.2 mm")),
])
pocket4 = body3.newObject("PartDesign::Pocket", "Pocket003")
pocket4.Profile = sketch14
pocket4.Length = 11
pocket4.Reversed = True

doc.recompute()
